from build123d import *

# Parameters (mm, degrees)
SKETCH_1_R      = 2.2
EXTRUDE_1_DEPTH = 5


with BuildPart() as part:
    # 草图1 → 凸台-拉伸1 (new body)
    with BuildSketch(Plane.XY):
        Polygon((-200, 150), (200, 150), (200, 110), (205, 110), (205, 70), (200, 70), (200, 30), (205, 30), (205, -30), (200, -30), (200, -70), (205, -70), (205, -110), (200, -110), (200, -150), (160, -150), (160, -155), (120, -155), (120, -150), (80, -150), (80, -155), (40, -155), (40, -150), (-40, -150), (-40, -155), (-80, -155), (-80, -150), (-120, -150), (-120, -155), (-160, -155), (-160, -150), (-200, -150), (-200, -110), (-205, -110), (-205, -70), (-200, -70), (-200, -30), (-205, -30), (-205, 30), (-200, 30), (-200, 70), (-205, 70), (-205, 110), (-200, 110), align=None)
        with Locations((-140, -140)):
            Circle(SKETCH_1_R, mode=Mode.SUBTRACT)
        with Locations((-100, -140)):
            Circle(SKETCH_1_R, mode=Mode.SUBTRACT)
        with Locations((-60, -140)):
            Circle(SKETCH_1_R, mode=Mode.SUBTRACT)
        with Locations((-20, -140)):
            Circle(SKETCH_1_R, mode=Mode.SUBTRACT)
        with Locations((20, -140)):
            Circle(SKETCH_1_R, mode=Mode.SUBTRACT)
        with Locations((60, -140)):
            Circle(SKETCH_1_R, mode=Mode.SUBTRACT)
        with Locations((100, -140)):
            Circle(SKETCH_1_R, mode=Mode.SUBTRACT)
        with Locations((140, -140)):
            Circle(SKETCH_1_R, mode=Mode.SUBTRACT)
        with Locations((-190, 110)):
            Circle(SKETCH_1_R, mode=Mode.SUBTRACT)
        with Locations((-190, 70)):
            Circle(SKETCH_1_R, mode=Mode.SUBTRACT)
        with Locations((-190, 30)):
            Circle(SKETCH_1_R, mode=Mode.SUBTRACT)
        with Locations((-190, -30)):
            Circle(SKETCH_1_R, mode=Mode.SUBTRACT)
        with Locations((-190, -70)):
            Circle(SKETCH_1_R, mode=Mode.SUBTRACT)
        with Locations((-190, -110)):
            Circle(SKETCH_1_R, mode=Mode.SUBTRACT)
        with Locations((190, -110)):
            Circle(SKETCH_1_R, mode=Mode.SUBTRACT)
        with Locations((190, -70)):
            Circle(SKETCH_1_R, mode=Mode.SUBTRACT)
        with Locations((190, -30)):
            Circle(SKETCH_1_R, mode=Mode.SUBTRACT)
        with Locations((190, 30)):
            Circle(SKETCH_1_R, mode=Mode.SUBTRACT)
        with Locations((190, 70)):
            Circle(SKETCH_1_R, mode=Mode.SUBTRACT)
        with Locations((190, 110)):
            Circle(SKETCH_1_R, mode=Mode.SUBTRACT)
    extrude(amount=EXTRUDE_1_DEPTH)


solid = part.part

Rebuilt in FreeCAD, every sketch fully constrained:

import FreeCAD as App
import Part
import Sketcher
from FreeCAD import Vector
Q = App.Units.Quantity

doc = App.newDocument("Part")
body = doc.addObject("PartDesign::Body", "Body")

sketch1 = doc.addObject("Sketcher::SketchObject", "Sketch")
body.addObject(sketch1)
sketch1.AttachmentSupport = (doc.XY_Plane, [""])
sketch1.MapMode = "FlatFace"
sketch1.addGeometry(Part.LineSegment(Vector(200, 150, 0), Vector(-200, 150, 0)), False)
sketch1.addGeometry(Part.LineSegment(Vector(-200, 150, 0), Vector(-200, 110, 0)), False)
sketch1.addGeometry(Part.LineSegment(Vector(-200, 110, 0), Vector(-205, 110, 0)), False)
sketch1.addGeometry(Part.LineSegment(Vector(-205, 110, 0), Vector(-205, 70, 0)), False)
sketch1.addGeometry(Part.LineSegment(Vector(-205, 70, 0), Vector(-200, 70, 0)), False)
sketch1.addGeometry(Part.LineSegment(Vector(-200, 70, 0), Vector(-200, 30, 0)), False)
sketch1.addGeometry(Part.LineSegment(Vector(-200, 30, 0), Vector(-205, 30, 0)), False)
sketch1.addGeometry(Part.LineSegment(Vector(-205, 30, 0), Vector(-205, -30, 0)), False)
sketch1.addGeometry(Part.LineSegment(Vector(-205, -30, 0), Vector(-200, -30, 0)), False)
sketch1.addGeometry(Part.LineSegment(Vector(-200, -30, 0), Vector(-200, -70, 0)), False)
sketch1.addGeometry(Part.LineSegment(Vector(-200, -70, 0), Vector(-205, -70, 0)), False)
sketch1.addGeometry(Part.LineSegment(Vector(-205, -70, 0), Vector(-205, -110, 0)), False)
sketch1.addGeometry(Part.LineSegment(Vector(-205, -110, 0), Vector(-200, -110, 0)), False)
sketch1.addGeometry(Part.LineSegment(Vector(-200, -110, 0), Vector(-200, -150, 0)), False)
sketch1.addGeometry(Part.LineSegment(Vector(-200, -150, 0), Vector(-160, -150, 0)), False)
sketch1.addGeometry(Part.LineSegment(Vector(-160, -150, 0), Vector(-160, -155, 0)), False)
sketch1.addGeometry(Part.LineSegment(Vector(-160, -155, 0), Vector(-120, -155, 0)), False)
sketch1.addGeometry(Part.LineSegment(Vector(-120, -155, 0), Vector(-120, -150, 0)), False)
sketch1.addGeometry(Part.LineSegment(Vector(-120, -150, 0), Vector(-80, -150, 0)), False)
sketch1.addGeometry(Part.LineSegment(Vector(-80, -150, 0), Vector(-80, -155, 0)), False)
sketch1.addGeometry(Part.LineSegment(Vector(-80, -155, 0), Vector(-40, -155, 0)), False)
sketch1.addGeometry(Part.LineSegment(Vector(-40, -155, 0), Vector(-40, -150, 0)), False)
sketch1.addGeometry(Part.LineSegment(Vector(-40, -150, 0), Vector(40, -150, 0)), False)
sketch1.addGeometry(Part.LineSegment(Vector(40, -150, 0), Vector(40, -155, 0)), False)
sketch1.addGeometry(Part.LineSegment(Vector(40, -155, 0), Vector(80, -155, 0)), False)
sketch1.addGeometry(Part.LineSegment(Vector(80, -155, 0), Vector(80, -150, 0)), False)
sketch1.addGeometry(Part.LineSegment(Vector(80, -150, 0), Vector(120, -150, 0)), False)
sketch1.addGeometry(Part.LineSegment(Vector(120, -150, 0), Vector(120, -155, 0)), False)
sketch1.addGeometry(Part.LineSegment(Vector(120, -155, 0), Vector(160, -155, 0)), False)
sketch1.addGeometry(Part.LineSegment(Vector(160, -155, 0), Vector(160, -150, 0)), False)
sketch1.addGeometry(Part.LineSegment(Vector(160, -150, 0), Vector(200, -150, 0)), False)
sketch1.addGeometry(Part.LineSegment(Vector(200, -150, 0), Vector(200, -110, 0)), False)
sketch1.addGeometry(Part.LineSegment(Vector(200, -110, 0), Vector(205, -110, 0)), False)
sketch1.addGeometry(Part.LineSegment(Vector(205, -110, 0), Vector(205, -70, 0)), False)
sketch1.addGeometry(Part.LineSegment(Vector(205, -70, 0), Vector(200, -70, 0)), False)
sketch1.addGeometry(Part.LineSegment(Vector(200, -70, 0), Vector(200, -30, 0)), False)
sketch1.addGeometry(Part.LineSegment(Vector(200, -30, 0), Vector(205, -30, 0)), False)
sketch1.addGeometry(Part.LineSegment(Vector(205, -30, 0), Vector(205, 30, 0)), False)
sketch1.addGeometry(Part.LineSegment(Vector(205, 30, 0), Vector(200, 30, 0)), False)
sketch1.addGeometry(Part.LineSegment(Vector(200, 30, 0), Vector(200, 70, 0)), False)
sketch1.addGeometry(Part.LineSegment(Vector(200, 70, 0), Vector(205, 70, 0)), False)
sketch1.addGeometry(Part.LineSegment(Vector(205, 70, 0), Vector(205, 110, 0)), False)
sketch1.addGeometry(Part.LineSegment(Vector(205, 110, 0), Vector(200, 110, 0)), False)
sketch1.addGeometry(Part.LineSegment(Vector(200, 110, 0), Vector(200, 150, 0)), False)
sketch1.addGeometry(Part.Circle(Vector(140, -140, 0), Vector(0, 0, 1), 2.2), False)
sketch1.addGeometry(Part.Circle(Vector(100, -140, 0), Vector(0, 0, 1), 2.2), False)
sketch1.addGeometry(Part.Circle(Vector(190, -110, 0), Vector(0, 0, 1), 2.2), False)
sketch1.addGeometry(Part.Circle(Vector(60, -140, 0), Vector(0, 0, 1), 2.2), False)
sketch1.addGeometry(Part.Circle(Vector(20, -140, 0), Vector(0, 0, 1), 2.2), False)
sketch1.addGeometry(Part.Circle(Vector(190, -70, 0), Vector(0, 0, 1), 2.2), False)
sketch1.addGeometry(Part.Circle(Vector(190, -30, 0), Vector(0, 0, 1), 2.2), False)
sketch1.addGeometry(Part.Circle(Vector(-20, -140, 0), Vector(0, 0, 1), 2.2), False)
sketch1.addGeometry(Part.Circle(Vector(-60, -140, 0), Vector(0, 0, 1), 2.2), False)
sketch1.addGeometry(Part.Circle(Vector(-100, -140, 0), Vector(0, 0, 1), 2.2), False)
sketch1.addGeometry(Part.Circle(Vector(-140, -140, 0), Vector(0, 0, 1), 2.2), False)
sketch1.addGeometry(Part.Circle(Vector(-190, -110, 0), Vector(0, 0, 1), 2.2), False)
sketch1.addGeometry(Part.Circle(Vector(-190, -70, 0), Vector(0, 0, 1), 2.2), False)
sketch1.addGeometry(Part.Circle(Vector(-190, -30, 0), Vector(0, 0, 1), 2.2), False)
sketch1.addGeometry(Part.Circle(Vector(190, 30, 0), Vector(0, 0, 1), 2.2), False)
sketch1.addGeometry(Part.Circle(Vector(190, 70, 0), Vector(0, 0, 1), 2.2), False)
sketch1.addGeometry(Part.Circle(Vector(190, 110, 0), Vector(0, 0, 1), 2.2), False)
sketch1.addGeometry(Part.Circle(Vector(-190, 30, 0), Vector(0, 0, 1), 2.2), False)
sketch1.addGeometry(Part.Circle(Vector(-190, 70, 0), Vector(0, 0, 1), 2.2), False)
sketch1.addGeometry(Part.Circle(Vector(-190, 110, 0), Vector(0, 0, 1), 2.2), False)
sketch1.addConstraint(Sketcher.Constraint("Coincident", 0, 2, 1, 1))
sketch1.addConstraint(Sketcher.Constraint("Coincident", 1, 2, 2, 1))
sketch1.addConstraint(Sketcher.Constraint("Coincident", 2, 2, 3, 1))
sketch1.addConstraint(Sketcher.Constraint("Coincident", 3, 2, 4, 1))
sketch1.addConstraint(Sketcher.Constraint("Coincident", 4, 2, 5, 1))
sketch1.addConstraint(Sketcher.Constraint("Coincident", 5, 2, 6, 1))
sketch1.addConstraint(Sketcher.Constraint("Coincident", 6, 2, 7, 1))
sketch1.addConstraint(Sketcher.Constraint("Coincident", 7, 2, 8, 1))
sketch1.addConstraint(Sketcher.Constraint("Coincident", 8, 2, 9, 1))
sketch1.addConstraint(Sketcher.Constraint("Coincident", 9, 2, 10, 1))
sketch1.addConstraint(Sketcher.Constraint("Coincident", 10, 2, 11, 1))
sketch1.addConstraint(Sketcher.Constraint("Coincident", 11, 2, 12, 1))
sketch1.addConstraint(Sketcher.Constraint("Coincident", 12, 2, 13, 1))
sketch1.addConstraint(Sketcher.Constraint("Coincident", 13, 2, 14, 1))
sketch1.addConstraint(Sketcher.Constraint("Coincident", 14, 2, 15, 1))
sketch1.addConstraint(Sketcher.Constraint("Coincident", 15, 2, 16, 1))
sketch1.addConstraint(Sketcher.Constraint("Coincident", 16, 2, 17, 1))
sketch1.addConstraint(Sketcher.Constraint("Coincident", 17, 2, 18, 1))
sketch1.addConstraint(Sketcher.Constraint("Coincident", 18, 2, 19, 1))
sketch1.addConstraint(Sketcher.Constraint("Coincident", 19, 2, 20, 1))
sketch1.addConstraint(Sketcher.Constraint("Coincident", 20, 2, 21, 1))
sketch1.addConstraint(Sketcher.Constraint("Coincident", 21, 2, 22, 1))
sketch1.addConstraint(Sketcher.Constraint("Coincident", 22, 2, 23, 1))
sketch1.addConstraint(Sketcher.Constraint("Coincident", 23, 2, 24, 1))
sketch1.addConstraint(Sketcher.Constraint("Coincident", 24, 2, 25, 1))
sketch1.addConstraint(Sketcher.Constraint("Coincident", 25, 2, 26, 1))
sketch1.addConstraint(Sketcher.Constraint("Coincident", 26, 2, 27, 1))
sketch1.addConstraint(Sketcher.Constraint("Coincident", 27, 2, 28, 1))
sketch1.addConstraint(Sketcher.Constraint("Coincident", 28, 2, 29, 1))
sketch1.addConstraint(Sketcher.Constraint("Coincident", 29, 2, 30, 1))
sketch1.addConstraint(Sketcher.Constraint("Coincident", 30, 2, 31, 1))
sketch1.addConstraint(Sketcher.Constraint("Coincident", 31, 2, 32, 1))
sketch1.addConstraint(Sketcher.Constraint("Coincident", 32, 2, 33, 1))
sketch1.addConstraint(Sketcher.Constraint("Coincident", 33, 2, 34, 1))
sketch1.addConstraint(Sketcher.Constraint("Coincident", 34, 2, 35, 1))
sketch1.addConstraint(Sketcher.Constraint("Coincident", 35, 2, 36, 1))
sketch1.addConstraint(Sketcher.Constraint("Coincident", 36, 2, 37, 1))
sketch1.addConstraint(Sketcher.Constraint("Coincident", 37, 2, 38, 1))
sketch1.addConstraint(Sketcher.Constraint("Coincident", 38, 2, 39, 1))
sketch1.addConstraint(Sketcher.Constraint("Coincident", 39, 2, 40, 1))
sketch1.addConstraint(Sketcher.Constraint("Coincident", 40, 2, 41, 1))
sketch1.addConstraint(Sketcher.Constraint("Coincident", 41, 2, 42, 1))
sketch1.addConstraint(Sketcher.Constraint("Coincident", 42, 2, 43, 1))
sketch1.addConstraint(Sketcher.Constraint("Coincident", 43, 2, 0, 1))
sketch1.addConstraint(Sketcher.Constraint("Horizontal", 0))
sketch1.addConstraint(Sketcher.Constraint("Vertical", 1))
sketch1.addConstraint(Sketcher.Constraint("Horizontal", 2))
sketch1.addConstraint(Sketcher.Constraint("Vertical", 3))
sketch1.addConstraint(Sketcher.Constraint("Horizontal", 4))
sketch1.addConstraint(Sketcher.Constraint("Vertical", 5))
sketch1.addConstraint(Sketcher.Constraint("Horizontal", 6))
sketch1.addConstraint(Sketcher.Constraint("Vertical", 7))
sketch1.addConstraint(Sketcher.Constraint("Horizontal", 8))
sketch1.addConstraint(Sketcher.Constraint("Vertical", 9))
sketch1.addConstraint(Sketcher.Constraint("Horizontal", 10))
sketch1.addConstraint(Sketcher.Constraint("Vertical", 11))
sketch1.addConstraint(Sketcher.Constraint("Horizontal", 12))
sketch1.addConstraint(Sketcher.Constraint("Vertical", 13))
sketch1.addConstraint(Sketcher.Constraint("Horizontal", 14))
sketch1.addConstraint(Sketcher.Constraint("Vertical", 15))
sketch1.addConstraint(Sketcher.Constraint("Horizontal", 16))
sketch1.addConstraint(Sketcher.Constraint("Vertical", 17))
sketch1.addConstraint(Sketcher.Constraint("Horizontal", 18))
sketch1.addConstraint(Sketcher.Constraint("Vertical", 19))
sketch1.addConstraint(Sketcher.Constraint("Horizontal", 20))
sketch1.addConstraint(Sketcher.Constraint("Vertical", 21))
sketch1.addConstraint(Sketcher.Constraint("Horizontal", 22))
sketch1.addConstraint(Sketcher.Constraint("Vertical", 23))
sketch1.addConstraint(Sketcher.Constraint("Horizontal", 24))
sketch1.addConstraint(Sketcher.Constraint("Vertical", 25))
sketch1.addConstraint(Sketcher.Constraint("Horizontal", 26))
sketch1.addConstraint(Sketcher.Constraint("Vertical", 27))
sketch1.addConstraint(Sketcher.Constraint("Horizontal", 28))
sketch1.addConstraint(Sketcher.Constraint("Vertical", 29))
sketch1.addConstraint(Sketcher.Constraint("Horizontal", 30))
sketch1.addConstraint(Sketcher.Constraint("Vertical", 31))
sketch1.addConstraint(Sketcher.Constraint("Horizontal", 32))
sketch1.addConstraint(Sketcher.Constraint("Vertical", 33))
sketch1.addConstraint(Sketcher.Constraint("Horizontal", 34))
sketch1.addConstraint(Sketcher.Constraint("Vertical", 35))
sketch1.addConstraint(Sketcher.Constraint("Horizontal", 36))
sketch1.addConstraint(Sketcher.Constraint("Vertical", 37))
sketch1.addConstraint(Sketcher.Constraint("Horizontal", 38))
sketch1.addConstraint(Sketcher.Constraint("Vertical", 39))
sketch1.addConstraint(Sketcher.Constraint("Horizontal", 40))
sketch1.addConstraint(Sketcher.Constraint("Vertical", 41))
sketch1.addConstraint(Sketcher.Constraint("Horizontal", 42))
sketch1.addConstraint(Sketcher.Constraint("Vertical", 43))
sketch1.addConstraint(Sketcher.Constraint("Equal", 44, 45))
sketch1.addConstraint(Sketcher.Constraint("Equal", 45, 46))
sketch1.addConstraint(Sketcher.Constraint("Equal", 46, 47))
sketch1.addConstraint(Sketcher.Constraint("Equal", 47, 48))
sketch1.addConstraint(Sketcher.Constraint("Equal", 48, 49))
sketch1.addConstraint(Sketcher.Constraint("Equal", 49, 50))
sketch1.addConstraint(Sketcher.Constraint("Equal", 50, 51))
sketch1.addConstraint(Sketcher.Constraint("Equal", 51, 52))
sketch1.addConstraint(Sketcher.Constraint("Equal", 52, 53))
sketch1.addConstraint(Sketcher.Constraint("Equal", 53, 54))
sketch1.addConstraint(Sketcher.Constraint("Equal", 54, 55))
sketch1.addConstraint(Sketcher.Constraint("Equal", 55, 56))
sketch1.addConstraint(Sketcher.Constraint("Equal", 56, 57))
sketch1.addConstraint(Sketcher.Constraint("Equal", 57, 58))
sketch1.addConstraint(Sketcher.Constraint("Equal", 58, 59))
sketch1.addConstraint(Sketcher.Constraint("Equal", 59, 60))
sketch1.addConstraint(Sketcher.Constraint("Equal", 60, 61))
sketch1.addConstraint(Sketcher.Constraint("Equal", 61, 62))
sketch1.addConstraint(Sketcher.Constraint("Equal", 62, 63))
sketch1.addConstraint(Sketcher.Constraint("Symmetric", 57, 3, 58, 3, -1, 1))
sketch1.addConstraint(Sketcher.Constraint("Symmetric", 56, 3, 59, 3, -1, 1))
sketch1.addConstraint(Sketcher.Constraint("Symmetric", 55, 3, 60, 3, -1, 1))
sketch1.addConstraint(Sketcher.Constraint("Symmetric", 50, 3, 61, 3, -1, 1))
sketch1.addConstraint(Sketcher.Constraint("Symmetric", 49, 3, 62, 3, -1, 1))
sketch1.addConstraint(Sketcher.Constraint("Symmetric", 46, 3, 63, 3, -1, 1))
sketch1.addConstraint(Sketcher.Constraint("Symmetric", 0, 2, 30, 2, -1, 1))
sketch1.addConstraint(Sketcher.Constraint("Symmetric", 2, 2, 32, 2, -1, 1))
sketch1.addConstraint(Sketcher.Constraint("Symmetric", 4, 2, 34, 2, -1, 1))
sketch1.addConstraint(Sketcher.Constraint("Symmetric", 6, 2, 36, 2, -1, 1))
sketch1.addConstraint(Sketcher.Constraint("Symmetric", 8, 2, 38, 2, -1, 1))
sketch1.addConstraint(Sketcher.Constraint("Symmetric", 10, 2, 40, 2, -1, 1))
sketch1.addConstraint(Sketcher.Constraint("Symmetric", 12, 2, 42, 2, -1, 1))
sketch1.addConstraint(Sketcher.Constraint("Symmetric", 48, 3, 51, 3, -2))
sketch1.addConstraint(Sketcher.Constraint("Symmetric", 47, 3, 52, 3, -2))
sketch1.addConstraint(Sketcher.Constraint("Symmetric", 45, 3, 53, 3, -2))
sketch1.addConstraint(Sketcher.Constraint("Symmetric", 44, 3, 54, 3, -2))
sketch1.addConstraint(Sketcher.Constraint("Symmetric", 46, 3, 55, 3, -2))
sketch1.addConstraint(Sketcher.Constraint("Symmetric", 49, 3, 56, 3, -2))
sketch1.addConstraint(Sketcher.Constraint("Symmetric", 50, 3, 57, 3, -2))
sketch1.addConstraint(Sketcher.Constraint("Symmetric", 20, 2, 23, 2, -2))
sketch1.addConstraint(Sketcher.Constraint("Symmetric", 18, 2, 25, 2, -2))
sketch1.addConstraint(Sketcher.Constraint("Symmetric", 16, 2, 27, 2, -2))
sketch1.addConstraint(Sketcher.Constraint("Symmetric", 14, 2, 29, 2, -2))
sketch1.addConstraint(Sketcher.Constraint("Symmetric", 12, 2, 31, 2, -2))
sketch1.addConstraint(Sketcher.Constraint("Symmetric", 10, 2, 33, 2, -2))
sketch1.addConstraint(Sketcher.Constraint("Symmetric", 8, 2, 35, 2, -2))
sketch1.addConstraint(Sketcher.Constraint("Horizontal", 44, 3, 45, 3))
sketch1.addConstraint(Sketcher.Constraint("Horizontal", 45, 3, 47, 3))
sketch1.addConstraint(Sketcher.Constraint("Horizontal", 47, 3, 48, 3))
sketch1.addConstraint(Sketcher.Constraint("Horizontal", 63, 3, 1, 2))
sketch1.addConstraint(Sketcher.Constraint("Horizontal", 62, 3, 3, 2))
sketch1.addConstraint(Sketcher.Constraint("Horizontal", 61, 3, 5, 2))
sketch1.addConstraint(Sketcher.Constraint("Horizontal", 14, 2, 17, 2))
sketch1.addConstraint(Sketcher.Constraint("Horizontal", 16, 2, 19, 2))
sketch1.addConstraint(Sketcher.Constraint("Horizontal", 18, 2, 21, 2))
sketch1.addConstraint(Sketcher.Constraint("Vertical", 46, 3, 49, 3))
sketch1.addConstraint(Sketcher.Constraint("Vertical", 49, 3, 50, 3))
sketch1.addConstraint(Sketcher.Constraint("Vertical", 1, 2, 4, 2))
sketch1.addConstraint(Sketcher.Constraint("Vertical", 3, 2, 6, 2))
sketch1.addConstraint(Sketcher.Constraint("Equal", 14, 16))
sketch1.addConstraint(Sketcher.Constraint("Equal", 16, 18))
sketch1.addConstraint(Sketcher.Constraint("Equal", 18, 20))
sketch1.addConstraint(Sketcher.Constraint("Equal", 30, 1))
sketch1.addConstraint(Sketcher.Constraint("Equal", 1, 3))
sketch1.addConstraint(Sketcher.Constraint("Equal", 3, 5))
sketch1.addConstraint(Sketcher.Constraint("Equal", 42, 15))
sketch1.addConstraint(Sketcher.Constraint("Diameter", 44, Q("4.4 mm")))
sketch1.addConstraint(Sketcher.Constraint("DistanceX", 0, 2, 0, 1, Q("400 mm")))
sketch1.addConstraint(Sketcher.Constraint("DistanceX", 2, 2, 2, 1, Q("5 mm")))
sketch1.addConstraint(Sketcher.Constraint("DistanceX", 14, 1, 14, 2, Q("40 mm")))
sketch1.addConstraint(Sketcher.Constraint("DistanceY", 7, 2, 7, 1, Q("60 mm")))
sketch1.addConstraint(Sketcher.Constraint("DistanceX", -1, 1, 44, 3, Q("140 mm")))
sketch1.addConstraint(Sketcher.Constraint("DistanceY", 44, 3, -1, 1, Q("140 mm")))
sketch1.addConstraint(Sketcher.Constraint("DistanceX", -1, 1, 45, 3, Q("100 mm")))
sketch1.addConstraint(Sketcher.Constraint("DistanceX", -1, 1, 46, 3, Q("190 mm")))
sketch1.addConstraint(Sketcher.Constraint("DistanceX", -1, 1, 47, 3, Q("60 mm")))
sketch1.addConstraint(Sketcher.Constraint("DistanceX", -1, 1, 48, 3, Q("20 mm")))
pad1 = doc.addObject("PartDesign::Pad", "Pad")
body.addObject(pad1)
pad1.Profile = sketch1
pad1.Length = 5

doc.recompute()
